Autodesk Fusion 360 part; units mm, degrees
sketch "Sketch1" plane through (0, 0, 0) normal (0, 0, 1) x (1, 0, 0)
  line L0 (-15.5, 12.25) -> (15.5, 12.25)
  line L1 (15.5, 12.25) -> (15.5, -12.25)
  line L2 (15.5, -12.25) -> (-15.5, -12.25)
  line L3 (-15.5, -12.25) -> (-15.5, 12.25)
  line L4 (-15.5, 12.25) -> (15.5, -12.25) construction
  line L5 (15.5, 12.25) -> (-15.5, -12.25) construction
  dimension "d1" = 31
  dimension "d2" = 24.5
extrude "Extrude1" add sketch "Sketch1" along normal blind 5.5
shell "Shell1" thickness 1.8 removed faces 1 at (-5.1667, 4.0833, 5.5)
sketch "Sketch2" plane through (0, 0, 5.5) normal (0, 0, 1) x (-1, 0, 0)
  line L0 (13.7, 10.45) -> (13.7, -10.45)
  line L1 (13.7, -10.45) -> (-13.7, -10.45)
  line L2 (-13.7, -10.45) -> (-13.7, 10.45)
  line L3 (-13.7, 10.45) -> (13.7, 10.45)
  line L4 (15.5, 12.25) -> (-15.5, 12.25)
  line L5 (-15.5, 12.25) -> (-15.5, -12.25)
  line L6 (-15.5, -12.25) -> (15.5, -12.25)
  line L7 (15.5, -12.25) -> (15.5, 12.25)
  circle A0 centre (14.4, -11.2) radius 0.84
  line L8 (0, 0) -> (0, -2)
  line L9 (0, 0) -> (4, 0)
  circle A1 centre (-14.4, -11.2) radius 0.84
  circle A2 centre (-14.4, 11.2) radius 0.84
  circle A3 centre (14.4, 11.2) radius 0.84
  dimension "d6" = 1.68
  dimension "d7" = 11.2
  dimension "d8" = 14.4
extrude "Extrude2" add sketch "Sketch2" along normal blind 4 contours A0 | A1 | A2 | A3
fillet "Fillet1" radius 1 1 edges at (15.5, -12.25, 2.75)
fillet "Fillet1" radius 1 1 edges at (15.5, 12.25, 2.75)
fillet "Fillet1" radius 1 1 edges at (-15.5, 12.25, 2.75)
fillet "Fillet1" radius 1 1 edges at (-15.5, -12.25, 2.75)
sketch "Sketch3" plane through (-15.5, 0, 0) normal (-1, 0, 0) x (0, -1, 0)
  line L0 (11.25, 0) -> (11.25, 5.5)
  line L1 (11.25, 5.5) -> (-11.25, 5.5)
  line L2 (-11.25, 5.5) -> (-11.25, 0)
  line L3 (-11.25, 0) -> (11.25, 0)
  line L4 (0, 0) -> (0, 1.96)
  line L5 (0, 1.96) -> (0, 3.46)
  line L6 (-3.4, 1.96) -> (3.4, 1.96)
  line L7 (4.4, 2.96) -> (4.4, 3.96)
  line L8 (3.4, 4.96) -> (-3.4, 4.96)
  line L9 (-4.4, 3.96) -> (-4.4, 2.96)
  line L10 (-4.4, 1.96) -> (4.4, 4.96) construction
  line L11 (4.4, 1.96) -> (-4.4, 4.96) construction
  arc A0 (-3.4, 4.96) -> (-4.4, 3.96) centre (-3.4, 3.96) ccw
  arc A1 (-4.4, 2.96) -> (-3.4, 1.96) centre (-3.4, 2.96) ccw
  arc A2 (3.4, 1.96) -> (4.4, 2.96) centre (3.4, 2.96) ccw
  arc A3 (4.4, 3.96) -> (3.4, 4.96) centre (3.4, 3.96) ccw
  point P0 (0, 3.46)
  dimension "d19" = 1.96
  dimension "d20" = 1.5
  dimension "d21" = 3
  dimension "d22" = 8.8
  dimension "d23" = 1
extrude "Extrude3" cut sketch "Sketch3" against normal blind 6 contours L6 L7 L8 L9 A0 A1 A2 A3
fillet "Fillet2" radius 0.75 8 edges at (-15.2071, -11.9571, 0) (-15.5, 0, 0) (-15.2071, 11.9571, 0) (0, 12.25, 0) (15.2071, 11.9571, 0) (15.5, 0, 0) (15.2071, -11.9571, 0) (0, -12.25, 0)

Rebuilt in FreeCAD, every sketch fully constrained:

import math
import FreeCAD as App
import Part
import Sketcher


def edges_at(feature, points):
    """Names of the edges that pass closest to the given points."""
    edges = feature.Shape.Edges
    near = lambda p: min(range(len(edges)), key=lambda i: edges[i].distToShape(Part.Vertex(*p))[0])
    return sorted({f"Edge{near(p) + 1}" for p in points})


def faces_at(feature, points):
    """Names of the faces that lie closest to the given points."""
    faces = feature.Shape.Faces
    near = lambda p: min(range(len(faces)), key=lambda i: faces[i].distToShape(Part.Vertex(*p))[0])
    return sorted({f"Face{near(p) + 1}" for p in points})

doc = App.newDocument("Part")
params = doc.addObject("Spreadsheet::Sheet", "Params")
for row, (alias, value) in enumerate([
    ("sketch1_width", "31 mm"),
    ("sketch1_height", "24.5 mm"),
    ("pad1_length", "5.5 mm"),
    ("thickness_wall", "1.8 mm"),
    ("sketch2_diameter", "1.68 mm"),
    ("pad2_length", "4 mm"),
    ("fillet_radius", "1 mm"),
    ("fillet2_radius", "1 mm"),
    ("fillet3_radius", "1 mm"),
    ("fillet4_radius", "1 mm"),
    ("sketch3_radius", "1 mm"),
    ("sketch3_height", "1 mm"),
    ("sketch3_width", "6.8 mm"),
    ("pocket1_length", "6 mm"),
    ("fillet5_radius", "0.75 mm"),
], start=1):
    params.set(f"A{row}", alias)
    params.set(f"B{row}", "=" + value)
    params.setAlias(f"B{row}", alias)

body = doc.addObject("PartDesign::Body", "Body")

# Sketch on XY plane
sketch1 = body.newObject("Sketcher::SketchObject", "Sketch")
sketch1.AttachmentSupport = (doc.getObject("XY_Plane"), [""])
sketch1.MapMode = "FlatFace"
sketch1.addGeometry(Part.LineSegment(App.Vector(15.5, 12.25, 0), App.Vector(-15.5, 12.25, 0)), False)
sketch1.addGeometry(Part.LineSegment(App.Vector(-15.5, 12.25, 0), App.Vector(-15.5, -12.25, 0)), False)
sketch1.addGeometry(Part.LineSegment(App.Vector(-15.5, -12.25, 0), App.Vector(15.5, -12.25, 0)), False)
sketch1.addGeometry(Part.LineSegment(App.Vector(15.5, -12.25, 0), App.Vector(15.5, 12.25, 0)), False)
sketch1.addConstraint(Sketcher.Constraint("Coincident", 0, 2, 1, 1))
sketch1.addConstraint(Sketcher.Constraint("Coincident", 1, 2, 2, 1))
sketch1.addConstraint(Sketcher.Constraint("Coincident", 2, 2, 3, 1))
sketch1.addConstraint(Sketcher.Constraint("Coincident", 3, 2, 0, 1))
sketch1.addConstraint(Sketcher.Constraint("Horizontal", 0))
sketch1.addConstraint(Sketcher.Constraint("Vertical", 1))
sketch1.addConstraint(Sketcher.Constraint("Horizontal", 2))
sketch1.addConstraint(Sketcher.Constraint("Vertical", 3))
sketch1.addConstraint(Sketcher.Constraint("Symmetric", 0, 2, 2, 2, -1, 1))
sketch1.addConstraint(Sketcher.Constraint("DistanceX", 0, 2, 0, 1, 31.0))
sketch1.addConstraint(Sketcher.Constraint("DistanceY", 1, 2, 1, 1, 24.5))
sketch1.setExpression("Constraints[9]", "Params.sketch1_width")
sketch1.setExpression("Constraints[10]", "Params.sketch1_height")
pad1 = body.newObject("PartDesign::Pad", "Pad")
pad1.Profile = sketch1
pad1.setExpression("Length", "Params.pad1_length")
doc.recompute()

thickness = body.newObject("PartDesign::Thickness", "Thickness")
thickness.Base = (pad1, faces_at(pad1, [(-5.167, 4.083, 5.5)]))
thickness.setExpression("Value", "Params.thickness_wall")
thickness.Reversed = True
thickness.Join = "Intersection"

# Sketch on XY plane
sketch2 = body.newObject("Sketcher::SketchObject", "Sketch001")
sketch2.AttachmentSupport = (doc.getObject("XY_Plane"), [""])
sketch2.MapMode = "FlatFace"
sketch2.AttachmentOffset = App.Placement(App.Vector(0, 0, 5.5), App.Rotation())
sketch2.addGeometry(Part.Circle(App.Vector(-14.4, 11.2, 0), App.Vector(0, 0, 1), 0.84), False)
sketch2.addGeometry(Part.Circle(App.Vector(14.4, 11.2, 0), App.Vector(0, 0, 1), 0.84), False)
sketch2.addGeometry(Part.Circle(App.Vector(14.4, -11.2, 0), App.Vector(0, 0, 1), 0.84), False)
sketch2.addGeometry(Part.Circle(App.Vector(-14.4, -11.2, 0), App.Vector(0, 0, 1), 0.84), False)
sketch2.addConstraint(Sketcher.Constraint("Equal", 0, 1))
sketch2.addConstraint(Sketcher.Constraint("Equal", 1, 2))
sketch2.addConstraint(Sketcher.Constraint("Equal", 2, 3))
sketch2.addConstraint(Sketcher.Constraint("Symmetric", 0, 3, 2, 3, -1, 1))
sketch2.addConstraint(Sketcher.Constraint("Symmetric", 1, 3, 3, 3, -1, 1))
sketch2.addConstraint(Sketcher.Constraint("Symmetric", 0, 3, 1, 3, -2))
sketch2.addConstraint(Sketcher.Constraint("Diameter", 0, 1.68))
sketch2.addConstraint(Sketcher.Constraint("DistanceX", 0, 3, -1, 1, 14.4))
sketch2.addConstraint(Sketcher.Constraint("DistanceY", -1, 1, 0, 3, 11.2))
sketch2.setExpression("Constraints[6]", "Params.sketch2_diameter")
pad2 = body.newObject("PartDesign::Pad", "Pad001")
pad2.Profile = sketch2
pad2.setExpression("Length", "Params.pad2_length")
doc.recompute()

fillet = body.newObject("PartDesign::Fillet", "Fillet")
fillet.Base = (pad2, edges_at(pad2, [(15.5, -12.25, 2.75)]))
fillet.setExpression("Radius", "Params.fillet_radius")
doc.recompute()

fillet2 = body.newObject("PartDesign::Fillet", "Fillet001")
fillet2.Base = (fillet, edges_at(fillet, [(15.5, 12.25, 2.75)]))
fillet2.setExpression("Radius", "Params.fillet2_radius")
doc.recompute()

fillet3 = body.newObject("PartDesign::Fillet", "Fillet002")
fillet3.Base = (fillet2, edges_at(fillet2, [(-15.5, 12.25, 2.75)]))
fillet3.setExpression("Radius", "Params.fillet3_radius")
doc.recompute()

fillet4 = body.newObject("PartDesign::Fillet", "Fillet003")
fillet4.Base = (fillet3, edges_at(fillet3, [(-15.5, -12.25, 2.75)]))
fillet4.setExpression("Radius", "Params.fillet4_radius")

# Sketch on YZ plane
sketch3 = body.newObject("Sketcher::SketchObject", "Sketch002")
sketch3.AttachmentSupport = (doc.getObject("YZ_Plane"), [""])
sketch3.MapMode = "FlatFace"
sketch3.AttachmentOffset = App.Placement(App.Vector(0, 0, -15.5), App.Rotation())
sketch3.addGeometry(Part.LineSegment(App.Vector(3.4, 1.96, 0), App.Vector(-3.4, 1.96, 0)), False)
sketch3.addGeometry(Part.ArcOfCircle(Part.Circle(App.Vector(-3.4, 2.96, 0), App.Vector(0, 0, 1), 1), math.radians(180), math.radians(270)), False)
sketch3.addGeometry(Part.LineSegment(App.Vector(-4.4, 2.96, 0), App.Vector(-4.4, 3.96, 0)), False)
sketch3.addGeometry(Part.ArcOfCircle(Part.Circle(App.Vector(-3.4, 3.96, 0), App.Vector(0, 0, 1), 1), math.radians(90), math.radians(180)), False)
sketch3.addGeometry(Part.LineSegment(App.Vector(-3.4, 4.96, 0), App.Vector(3.4, 4.96, 0)), False)
sketch3.addGeometry(Part.ArcOfCircle(Part.Circle(App.Vector(3.4, 3.96, 0), App.Vector(0, 0, 1), 1), math.radians(0), math.radians(90)), False)
sketch3.addGeometry(Part.LineSegment(App.Vector(4.4, 3.96, 0), App.Vector(4.4, 2.96, 0)), False)
sketch3.addGeometry(Part.ArcOfCircle(Part.Circle(App.Vector(3.4, 2.96, 0), App.Vector(0, 0, 1), 1), math.radians(-90), math.radians(0)), False)
sketch3.addConstraint(Sketcher.Constraint("Tangent", 0, 2, 1, 2))
sketch3.addConstraint(Sketcher.Constraint("Tangent", 1, 1, 2, 1))
sketch3.addConstraint(Sketcher.Constraint("Tangent", 2, 2, 3, 2))
sketch3.addConstraint(Sketcher.Constraint("Tangent", 3, 1, 4, 1))
sketch3.addConstraint(Sketcher.Constraint("Tangent", 4, 2, 5, 2))
sketch3.addConstraint(Sketcher.Constraint("Tangent", 5, 1, 6, 1))
sketch3.addConstraint(Sketcher.Constraint("Tangent", 6, 2, 7, 2))
sketch3.addConstraint(Sketcher.Constraint("Tangent", 7, 1, 0, 1))
sketch3.addConstraint(Sketcher.Constraint("Horizontal", 0))
sketch3.addConstraint(Sketcher.Constraint("Vertical", 2))
sketch3.addConstraint(Sketcher.Constraint("Horizontal", 4))
sketch3.addConstraint(Sketcher.Constraint("Vertical", 6))
sketch3.addConstraint(Sketcher.Constraint("Equal", 1, 3))
sketch3.addConstraint(Sketcher.Constraint("Equal", 3, 5))
sketch3.addConstraint(Sketcher.Constraint("Equal", 5, 7))
sketch3.addConstraint(Sketcher.Constraint("Radius", 1, 1.0))
sketch3.addConstraint(Sketcher.Constraint("DistanceY", 2, 1, 2, 2, 1.0))
sketch3.addConstraint(Sketcher.Constraint("DistanceY", -1, 1, 0, 2, 1.96))
sketch3.addConstraint(Sketcher.Constraint("DistanceX", 0, 2, 0, 1, 6.8))
sketch3.addConstraint(Sketcher.Constraint("DistanceX", 1, 3, -1, 1, 3.4))
sketch3.setExpression("Constraints[15]", "Params.sketch3_radius")
sketch3.setExpression("Constraints[16]", "Params.sketch3_height")
sketch3.setExpression("Constraints[18]", "Params.sketch3_width")
pocket1 = body.newObject("PartDesign::Pocket", "Pocket")
pocket1.Profile = sketch3
pocket1.setExpression("Length", "Params.pocket1_length")
pocket1.Reversed = True
doc.recompute()

fillet5 = body.newObject("PartDesign::Fillet", "Fillet004")
fillet5.Base = (pocket1, edges_at(pocket1, [
    (-15.207, -11.957, 0),
    (-15.5, 0, 0),
    (-15.207, 11.957, 0),
    (0, 12.25, 0),
    (15.207, 11.957, 0),
    (15.5, 0, 0),
    (15.207, -11.957, 0),
    (0, -12.25, 0),
]))
fillet5.setExpression("Radius", "Params.fillet5_radius")

doc.recompute()
